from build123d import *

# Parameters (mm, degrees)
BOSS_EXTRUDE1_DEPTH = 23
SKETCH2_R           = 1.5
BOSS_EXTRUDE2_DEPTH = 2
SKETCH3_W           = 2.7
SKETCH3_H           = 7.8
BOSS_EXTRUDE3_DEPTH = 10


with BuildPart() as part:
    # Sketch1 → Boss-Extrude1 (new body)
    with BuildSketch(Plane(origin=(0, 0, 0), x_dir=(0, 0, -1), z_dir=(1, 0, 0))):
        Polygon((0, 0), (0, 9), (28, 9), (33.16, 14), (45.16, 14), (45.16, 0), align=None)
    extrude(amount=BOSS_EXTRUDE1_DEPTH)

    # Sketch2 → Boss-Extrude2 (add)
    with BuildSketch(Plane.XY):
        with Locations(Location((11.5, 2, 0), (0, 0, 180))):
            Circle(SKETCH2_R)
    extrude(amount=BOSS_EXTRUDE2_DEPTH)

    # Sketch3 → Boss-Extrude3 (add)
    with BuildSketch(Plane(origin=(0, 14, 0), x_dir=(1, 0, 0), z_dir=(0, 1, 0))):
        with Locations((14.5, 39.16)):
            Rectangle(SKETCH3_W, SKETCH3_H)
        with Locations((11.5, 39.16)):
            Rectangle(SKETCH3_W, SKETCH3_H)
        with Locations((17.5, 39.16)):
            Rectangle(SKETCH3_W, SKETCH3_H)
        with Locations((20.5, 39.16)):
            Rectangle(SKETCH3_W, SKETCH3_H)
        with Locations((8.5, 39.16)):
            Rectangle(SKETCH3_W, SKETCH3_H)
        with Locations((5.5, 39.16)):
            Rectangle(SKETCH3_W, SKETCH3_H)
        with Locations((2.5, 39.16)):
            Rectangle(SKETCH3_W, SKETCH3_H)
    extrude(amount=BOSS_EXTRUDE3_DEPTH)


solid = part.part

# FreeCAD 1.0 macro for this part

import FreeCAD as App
import Part
import Sketcher
from FreeCAD import Vector


def add_polygon(sketch, points):
    """Adds a closed chain of lines whose ends are joined by coincident constraints."""
    first, n = sketch.GeometryCount, len(points)
    for a, b in zip(points, points[1:] + points[:1]):
        sketch.addGeometry(Part.LineSegment(App.Vector(*a, 0), App.Vector(*b, 0)), False)
    for i in range(n):
        sketch.addConstraint(Sketcher.Constraint("Coincident", first + i, 2, first + (i + 1) % n, 1))

doc = App.newDocument("Part")
body = doc.addObject("PartDesign::Body", "Body")

sketch1 = body.newObject("Sketcher::SketchObject", "Sketch")
sketch1.AttachmentSupport = (doc.getObject("YZ_Plane"), [""])
sketch1.MapMode = "FlatFace"
add_polygon(sketch1, [(9, 0), (0, 0), (0, -45), (14, -45), (14, -33), (9, -28)])
sketch1.addConstraint([
    Sketcher.Constraint("Horizontal", 0),
    Sketcher.Constraint("Vertical", 1),
    Sketcher.Constraint("Horizontal", 2),
    Sketcher.Constraint("Vertical", 3),
    Sketcher.Constraint("Vertical", 5),
    Sketcher.Constraint("Coincident", 0, 2, -1, 1),
    Sketcher.Constraint("DistanceX", 0, 2, 0, 1, 9.0),
    Sketcher.Constraint("DistanceX", 2, 1, 2, 2, 14.0),
    Sketcher.Constraint("DistanceY", 3, 1, 3, 2, 12.0),
    Sketcher.Constraint("DistanceY", 5, 1, 5, 2, 28.0),
    Sketcher.Constraint("DistanceY", 1, 2, 1, 1, 45.16),
])
pad1 = body.newObject("PartDesign::Pad", "Pad")
pad1.Profile = sketch1
pad1.Length = 23

sketch2 = body.newObject("Sketcher::SketchObject", "Sketch001")
sketch2.AttachmentSupport = (doc.getObject("XY_Plane"), [""])
sketch2.MapMode = "FlatFace"
sketch2.addGeometry(Part.Circle(Vector(11.5, 2, 0), Vector(0, 0, 1), 1.5), False)
sketch2.addConstraint([
    Sketcher.Constraint("Diameter", 0, 3.0),
    Sketcher.Constraint("DistanceY", -1, 1, 0, 3, 2.0),
    Sketcher.Constraint("DistanceX", -1, 1, 0, 3, 11.5),
])
pad2 = body.newObject("PartDesign::Pad", "Pad001")
pad2.Profile = sketch2
pad2.Length = 2

sketch3 = body.newObject("Sketcher::SketchObject", "Sketch002")
sketch3.AttachmentSupport = (doc.getObject("XZ_Plane"), [""])
sketch3.MapMode = "FlatFace"
sketch3.AttachmentOffset = App.Placement(Vector(0, 0, -14), App.Rotation())
add_polygon(sketch3, [(13.2, -43.1), (13.2, -35.3), (15.8, -35.3), (15.8, -43.1)])
add_polygon(sketch3, [(10.2, -43.1), (10.2, -35.3), (12.8, -35.3), (12.8, -43.1)])
add_polygon(sketch3, [(16.1, -43.1), (16.1, -35.3), (18.9, -35.3), (18.9, -43.1)])
add_polygon(sketch3, [(19.1, -43.1), (19.1, -35.3), (21.9, -35.3), (21.9, -43.1)])
add_polygon(sketch3, [(7.2, -43.1), (7.2, -35.3), (9.8, -35.3), (9.8, -43.1)])
add_polygon(sketch3, [(4.2, -43.1), (4.2, -35.3), (6.8, -35.3), (6.8, -43.1)])
add_polygon(sketch3, [(1.1, -43.1), (1.1, -35.3), (3.9, -35.3), (3.9, -43.1)])
sketch3.addConstraint([
    Sketcher.Constraint("Vertical", 0),
    Sketcher.Constraint("Horizontal", 1),
    Sketcher.Constraint("Vertical", 2),
    Sketcher.Constraint("Horizontal", 3),
    Sketcher.Constraint("Vertical", 4),
    Sketcher.Constraint("Horizontal", 5),
    Sketcher.Constraint("Vertical", 6),
    Sketcher.Constraint("Horizontal", 7),
    Sketcher.Constraint("Vertical", 8),
    Sketcher.Constraint("Horizontal", 9),
    Sketcher.Constraint("Vertical", 10),
    Sketcher.Constraint("Horizontal", 11),
    Sketcher.Constraint("Vertical", 12),
    Sketcher.Constraint("Horizontal", 13),
    Sketcher.Constraint("Vertical", 14),
    Sketcher.Constraint("Horizontal", 15),
    Sketcher.Constraint("Vertical", 16),
    Sketcher.Constraint("Horizontal", 17),
    Sketcher.Constraint("Vertical", 18),
    Sketcher.Constraint("Horizontal", 19),
    Sketcher.Constraint("Vertical", 20),
    Sketcher.Constraint("Horizontal", 21),
    Sketcher.Constraint("Vertical", 22),
    Sketcher.Constraint("Horizontal", 23),
    Sketcher.Constraint("Vertical", 24),
    Sketcher.Constraint("Horizontal", 25),
    Sketcher.Constraint("Vertical", 26),
    Sketcher.Constraint("Horizontal", 27),
    Sketcher.Constraint("Horizontal", 1, 2, 4, 2),
    Sketcher.Constraint("Horizontal", 3, 2, 6, 2),
    Sketcher.Constraint("Horizontal", 5, 2, 8, 2),
    Sketcher.Constraint("Horizontal", 7, 2, 10, 2),
    Sketcher.Constraint("Horizontal", 9, 2, 12, 2),
    Sketcher.Constraint("Horizontal", 11, 2, 14, 2),
    Sketcher.Constraint("Horizontal", 13, 2, 16, 2),
    Sketcher.Constraint("Horizontal", 15, 2, 18, 2),
    Sketcher.Constraint("Horizontal", 17, 2, 20, 2),
    Sketcher.Constraint("Horizontal", 19, 2, 22, 2),
    Sketcher.Constraint("Horizontal", 21, 2, 24, 2),
    Sketcher.Constraint("Horizontal", 23, 2, 26, 2),
    Sketcher.Constraint("Equal", 3, 5),
    Sketcher.Constraint("Equal", 7, 9),
    Sketcher.Constraint("Equal", 11, 13),
    Sketcher.Constraint("Equal", 15, 17),
    Sketcher.Constraint("Equal", 19, 21),
    Sketcher.Constraint("Equal", 23, 25),
    Sketcher.Constraint("DistanceX", 1, 1, 1, 2, 2.7),
    Sketcher.Constraint("DistanceY", 0, 1, 0, 2, 7.8),
    Sketcher.Constraint("DistanceX", 4, 2, 0, 2, 3.0),
    Sketcher.Constraint("DistanceX", 0, 2, 8, 2, 3.0),
    Sketcher.Constraint("DistanceX", 8, 2, 12, 2, 3.0),
    Sketcher.Constraint("DistanceX", 16, 2, 4, 2, 3.0),
    Sketcher.Constraint("DistanceX", 20, 2, 16, 2, 3.0),
    Sketcher.Constraint("DistanceX", 24, 2, 20, 2, 3.0),
    Sketcher.Constraint("DistanceX", -1, 1, 0, 2, 13.15),
    Sketcher.Constraint("DistanceY", 0, 2, -1, 1, 35.26),
])
pad3 = body.newObject("PartDesign::Pad", "Pad002")
pad3.Profile = sketch3
pad3.Length = 10
pad3.Reversed = True

doc.recompute()
